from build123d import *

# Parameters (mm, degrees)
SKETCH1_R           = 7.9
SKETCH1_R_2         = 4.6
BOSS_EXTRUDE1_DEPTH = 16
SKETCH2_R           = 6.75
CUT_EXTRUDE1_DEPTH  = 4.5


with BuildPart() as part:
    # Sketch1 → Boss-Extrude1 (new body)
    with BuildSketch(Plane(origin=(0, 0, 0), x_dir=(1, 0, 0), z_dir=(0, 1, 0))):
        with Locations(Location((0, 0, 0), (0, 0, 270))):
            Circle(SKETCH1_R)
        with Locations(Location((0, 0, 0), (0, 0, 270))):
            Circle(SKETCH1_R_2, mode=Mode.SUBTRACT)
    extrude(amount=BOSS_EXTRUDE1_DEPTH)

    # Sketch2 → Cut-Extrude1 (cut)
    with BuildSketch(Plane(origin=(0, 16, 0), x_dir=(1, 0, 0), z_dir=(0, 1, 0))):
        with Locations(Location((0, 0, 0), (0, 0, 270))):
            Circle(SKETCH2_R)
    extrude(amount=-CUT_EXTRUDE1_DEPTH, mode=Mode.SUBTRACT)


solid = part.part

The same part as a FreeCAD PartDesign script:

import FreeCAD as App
import Part
import Sketcher
from FreeCAD import Vector
Q = App.Units.Quantity

doc = App.newDocument("Part")
params = doc.addObject("Spreadsheet::Sheet", "Params")
for row, (alias, value) in enumerate([
    ("sketch1_diameter", "15.8 mm"),
    ("sketch1_diameter2", "9.2 mm"),
    ("pad1_length", "16 mm"),
    ("sketch2_diameter", "13.5 mm"),
    ("pocket1_length", "4.5 mm"),
], start=1):
    params.set(f"A{row}", alias)
    params.set(f"B{row}", "=" + value)
    params.setAlias(f"B{row}", alias)

body = doc.addObject("PartDesign::Body", "Body")

# Sketch on XZ plane
sketch1 = body.newObject("Sketcher::SketchObject", "Sketch")
sketch1.AttachmentSupport = (doc.getObject("XZ_Plane"), [""])
sketch1.MapMode = "FlatFace"
sketch1.addGeometry(Part.Circle(Vector(0, 0, 0), Vector(0, 0, 1), 7.9), False)
sketch1.addGeometry(Part.Circle(Vector(0, 0, 0), Vector(0, 0, 1), 4.6), False)
sketch1.addConstraint(Sketcher.Constraint("Coincident", 0, 3, -1, 1))
sketch1.addConstraint(Sketcher.Constraint("Coincident", 1, 3, -1, 1))
sketch1.addConstraint(Sketcher.Constraint("Diameter", 0, Q("15.8 mm")))
sketch1.addConstraint(Sketcher.Constraint("Diameter", 1, Q("9.2 mm")))
sketch1.setExpression("Constraints[2]", "Params.sketch1_diameter")
sketch1.setExpression("Constraints[3]", "Params.sketch1_diameter2")
pad1 = body.newObject("PartDesign::Pad", "Pad")
pad1.Profile = sketch1
pad1.setExpression("Length", "Params.pad1_length")
pad1.Reversed = True

# Sketch on XZ plane
sketch2 = body.newObject("Sketcher::SketchObject", "Sketch001")
sketch2.AttachmentSupport = (doc.getObject("XZ_Plane"), [""])
sketch2.MapMode = "FlatFace"
sketch2.AttachmentOffset = App.Placement(Vector(0, 0, -16), App.Rotation())
sketch2.addGeometry(Part.Circle(Vector(0, 0, 0), Vector(0, 0, 1), 7), False)
sketch2.addConstraint(Sketcher.Constraint("Coincident", 0, 3, -1, 1))
sketch2.addConstraint(Sketcher.Constraint("Diameter", 0, Q("13.5 mm")))
sketch2.setExpression("Constraints[1]", "Params.sketch2_diameter")
pocket1 = body.newObject("PartDesign::Pocket", "Pocket")
pocket1.Profile = sketch2
pocket1.setExpression("Length", "Params.pocket1_length")
pocket1.Reversed = True

doc.recompute()
